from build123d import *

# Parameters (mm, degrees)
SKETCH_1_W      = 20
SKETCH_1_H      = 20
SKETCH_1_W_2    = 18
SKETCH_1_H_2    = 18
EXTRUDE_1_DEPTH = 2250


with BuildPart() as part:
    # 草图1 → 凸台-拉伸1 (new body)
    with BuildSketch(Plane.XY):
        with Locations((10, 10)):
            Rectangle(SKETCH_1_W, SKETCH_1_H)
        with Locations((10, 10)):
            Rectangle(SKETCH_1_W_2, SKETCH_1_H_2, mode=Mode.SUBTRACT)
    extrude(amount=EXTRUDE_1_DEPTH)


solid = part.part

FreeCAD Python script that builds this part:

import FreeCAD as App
import Part
import Sketcher

V = App.Vector
Q = App.Units.Quantity

doc = App.newDocument("Part")
body = doc.addObject("PartDesign::Body", "Body")

sketch1 = doc.addObject("Sketcher::SketchObject", "Sketch")
body.addObject(sketch1)
sketch1.AttachmentSupport = (doc.XY_Plane, [""])
sketch1.MapMode = "FlatFace"
sketch1.addGeometry(Part.LineSegment(V(0, 20, 0), V(0, 0, 0)), False)
sketch1.addGeometry(Part.LineSegment(V(0, 0, 0), V(20, 0, 0)), False)
sketch1.addGeometry(Part.LineSegment(V(20, 0, 0), V(20, 20, 0)), False)
sketch1.addGeometry(Part.LineSegment(V(20, 20, 0), V(0, 20, 0)), False)
sketch1.addGeometry(Part.LineSegment(V(19, 1, 0), V(1, 1, 0)), False)
sketch1.addGeometry(Part.LineSegment(V(1, 1, 0), V(1, 19, 0)), False)
sketch1.addGeometry(Part.LineSegment(V(1, 19, 0), V(19, 19, 0)), False)
sketch1.addGeometry(Part.LineSegment(V(19, 19, 0), V(19, 1, 0)), False)
sketch1.addConstraint(Sketcher.Constraint("Coincident", 0, 2, 1, 1))
sketch1.addConstraint(Sketcher.Constraint("Coincident", 1, 2, 2, 1))
sketch1.addConstraint(Sketcher.Constraint("Coincident", 2, 2, 3, 1))
sketch1.addConstraint(Sketcher.Constraint("Coincident", 3, 2, 0, 1))
sketch1.addConstraint(Sketcher.Constraint("Coincident", 4, 2, 5, 1))
sketch1.addConstraint(Sketcher.Constraint("Coincident", 5, 2, 6, 1))
sketch1.addConstraint(Sketcher.Constraint("Coincident", 6, 2, 7, 1))
sketch1.addConstraint(Sketcher.Constraint("Coincident", 7, 2, 4, 1))
sketch1.addConstraint(Sketcher.Constraint("Vertical", 0))
sketch1.addConstraint(Sketcher.Constraint("Horizontal", 1))
sketch1.addConstraint(Sketcher.Constraint("Vertical", 2))
sketch1.addConstraint(Sketcher.Constraint("Horizontal", 3))
sketch1.addConstraint(Sketcher.Constraint("Horizontal", 4))
sketch1.addConstraint(Sketcher.Constraint("Vertical", 5))
sketch1.addConstraint(Sketcher.Constraint("Horizontal", 6))
sketch1.addConstraint(Sketcher.Constraint("Vertical", 7))
sketch1.addConstraint(Sketcher.Constraint("Coincident", 0, 2, -1, 1))
sketch1.addConstraint(Sketcher.Constraint("Equal", 3, 0))
sketch1.addConstraint(Sketcher.Constraint("Equal", 6, 5))
sketch1.addConstraint(Sketcher.Constraint("DistanceX", 1, 1, 1, 2, Q("20 mm")))
sketch1.addConstraint(Sketcher.Constraint("DistanceX", 4, 2, 4, 1, Q("18 mm")))
sketch1.addConstraint(Sketcher.Constraint("DistanceX", -1, 1, 4, 2, Q("1 mm")))
sketch1.addConstraint(Sketcher.Constraint("DistanceY", -1, 1, 4, 2, Q("1 mm")))
pad1 = doc.addObject("PartDesign::Pad", "Pad")
body.addObject(pad1)
pad1.Profile = sketch1
pad1.Length = 2250

doc.recompute()
